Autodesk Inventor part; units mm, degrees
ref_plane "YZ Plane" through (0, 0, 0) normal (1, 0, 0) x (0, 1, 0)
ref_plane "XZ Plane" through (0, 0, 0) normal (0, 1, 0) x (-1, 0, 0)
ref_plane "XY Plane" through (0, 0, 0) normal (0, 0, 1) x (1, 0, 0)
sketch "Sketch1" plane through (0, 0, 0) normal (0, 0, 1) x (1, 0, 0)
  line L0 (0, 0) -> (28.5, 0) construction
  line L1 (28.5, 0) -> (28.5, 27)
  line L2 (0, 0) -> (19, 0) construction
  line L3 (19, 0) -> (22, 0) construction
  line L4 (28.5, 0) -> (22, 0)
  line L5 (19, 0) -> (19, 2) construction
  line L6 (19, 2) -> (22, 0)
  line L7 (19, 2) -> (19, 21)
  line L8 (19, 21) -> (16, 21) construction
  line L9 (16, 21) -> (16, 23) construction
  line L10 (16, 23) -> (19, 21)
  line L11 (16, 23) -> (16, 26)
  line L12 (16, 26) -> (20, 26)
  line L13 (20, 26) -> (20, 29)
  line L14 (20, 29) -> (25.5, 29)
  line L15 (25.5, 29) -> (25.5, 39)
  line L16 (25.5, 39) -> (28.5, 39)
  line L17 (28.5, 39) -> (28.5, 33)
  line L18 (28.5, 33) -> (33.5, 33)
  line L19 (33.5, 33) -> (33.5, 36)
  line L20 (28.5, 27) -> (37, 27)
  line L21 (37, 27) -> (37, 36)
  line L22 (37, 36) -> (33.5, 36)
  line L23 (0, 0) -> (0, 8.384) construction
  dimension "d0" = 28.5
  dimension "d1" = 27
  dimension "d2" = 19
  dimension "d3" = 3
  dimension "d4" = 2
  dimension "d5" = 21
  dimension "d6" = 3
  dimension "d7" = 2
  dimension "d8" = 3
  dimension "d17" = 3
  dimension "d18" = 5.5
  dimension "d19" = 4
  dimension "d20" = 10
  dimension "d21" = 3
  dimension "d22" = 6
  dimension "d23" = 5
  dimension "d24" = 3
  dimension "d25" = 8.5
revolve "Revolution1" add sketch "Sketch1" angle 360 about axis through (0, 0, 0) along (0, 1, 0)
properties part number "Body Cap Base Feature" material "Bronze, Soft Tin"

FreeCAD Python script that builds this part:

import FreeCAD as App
import Part
import Sketcher
from FreeCAD import Vector
Q = App.Units.Quantity

doc = App.newDocument("Part")
params = doc.addObject("Spreadsheet::Sheet", "Params")
for row, (alias, value) in enumerate([
    ("sketch1_width", "5 mm"),
    ("sketch1_width2", "3 mm"),
    ("sketch1_width3", "4 mm"),
    ("sketch1_height", "27 mm"),
    ("sketch1_height2", "6 mm"),
    ("revolution_angle", "360 deg"),
], start=1):
    params.set(f"A{row}", alias)
    params.set(f"B{row}", "=" + value)
    params.setAlias(f"B{row}", alias)

body = doc.addObject("PartDesign::Body", "Body")

# Sketch on XY plane
sketch1 = doc.addObject("Sketcher::SketchObject", "Sketch")
body.addObject(sketch1)
sketch1.AttachmentSupport = (doc.XY_Plane, [""])
sketch1.MapMode = "FlatFace"
sketch1.addGeometry([
    Part.LineSegment(Vector(22, 0, 0), Vector(28.5, 0, 0)),  # 0
    Part.LineSegment(Vector(28.5, 0, 0), Vector(28.5, 27, 0)),  # 1
    Part.LineSegment(Vector(28.5, 27, 0), Vector(37, 27, 0)),  # 2
    Part.LineSegment(Vector(37, 27, 0), Vector(37, 36, 0)),  # 3
    Part.LineSegment(Vector(37, 36, 0), Vector(33.5, 36, 0)),  # 4
    Part.LineSegment(Vector(33.5, 36, 0), Vector(33.5, 33, 0)),  # 5
    Part.LineSegment(Vector(33.5, 33, 0), Vector(28.5, 33, 0)),  # 6
    Part.LineSegment(Vector(28.5, 33, 0), Vector(28.5, 39, 0)),  # 7
    Part.LineSegment(Vector(28.5, 39, 0), Vector(25.5, 39, 0)),  # 8
    Part.LineSegment(Vector(25.5, 39, 0), Vector(25.5, 29, 0)),  # 9
    Part.LineSegment(Vector(25.5, 29, 0), Vector(20, 29, 0)),  # 10
    Part.LineSegment(Vector(20, 29, 0), Vector(20, 26, 0)),  # 11
    Part.LineSegment(Vector(20, 26, 0), Vector(16, 26, 0)),  # 12
    Part.LineSegment(Vector(16, 26, 0), Vector(16, 23, 0)),  # 13
    Part.LineSegment(Vector(16, 23, 0), Vector(19, 21, 0)),  # 14
    Part.LineSegment(Vector(19, 21, 0), Vector(19, 2, 0)),  # 15
    Part.LineSegment(Vector(19, 2, 0), Vector(22, 0, 0)),  # 16
], False)
sketch1.addConstraint([
    Sketcher.Constraint("Coincident", 0, 2, 1, 1),
    Sketcher.Constraint("Coincident", 1, 2, 2, 1),
    Sketcher.Constraint("Coincident", 2, 2, 3, 1),
    Sketcher.Constraint("Coincident", 3, 2, 4, 1),
    Sketcher.Constraint("Coincident", 4, 2, 5, 1),
    Sketcher.Constraint("Coincident", 5, 2, 6, 1),
    Sketcher.Constraint("Coincident", 6, 2, 7, 1),
    Sketcher.Constraint("Coincident", 7, 2, 8, 1),
    Sketcher.Constraint("Coincident", 8, 2, 9, 1),
    Sketcher.Constraint("Coincident", 9, 2, 10, 1),
    Sketcher.Constraint("Coincident", 10, 2, 11, 1),
    Sketcher.Constraint("Coincident", 11, 2, 12, 1),
    Sketcher.Constraint("Coincident", 12, 2, 13, 1),
    Sketcher.Constraint("Coincident", 13, 2, 14, 1),
    Sketcher.Constraint("Coincident", 14, 2, 15, 1),
    Sketcher.Constraint("Coincident", 15, 2, 16, 1),
    Sketcher.Constraint("Coincident", 16, 2, 0, 1),
    Sketcher.Constraint("Horizontal", 0),
    Sketcher.Constraint("Vertical", 1),
    Sketcher.Constraint("Horizontal", 2),
    Sketcher.Constraint("Vertical", 3),
    Sketcher.Constraint("Horizontal", 4),
    Sketcher.Constraint("Vertical", 5),
    Sketcher.Constraint("Horizontal", 6),
    Sketcher.Constraint("Vertical", 7),
    Sketcher.Constraint("Horizontal", 8),
    Sketcher.Constraint("Vertical", 9),
    Sketcher.Constraint("Horizontal", 10),
    Sketcher.Constraint("Vertical", 11),
    Sketcher.Constraint("Horizontal", 12),
    Sketcher.Constraint("Vertical", 13),
    Sketcher.Constraint("Vertical", 15),
    Sketcher.Constraint("PointOnObject", 0, 2, -1),
    Sketcher.Constraint("Parallel", 14, 16),
    Sketcher.Constraint("Vertical", 1, 2, 6, 2),
    Sketcher.Constraint("Equal", 8, 5),
    Sketcher.Constraint("Equal", 5, 11),
    Sketcher.Constraint("Equal", 11, 13),
    Sketcher.Constraint("Equal", 14, 16),
    Sketcher.Constraint("DistanceX", 6, 2, 6, 1, Q("5 mm")),
    Sketcher.Constraint("DistanceX", 8, 2, 8, 1, Q("3 mm")),
    Sketcher.Constraint("DistanceX", 12, 2, 12, 1, Q("4 mm")),
    Sketcher.Constraint("DistanceY", 1, 1, 1, 2, Q("27 mm")),
    Sketcher.Constraint("DistanceY", 7, 1, 7, 2, Q("6 mm")),
    Sketcher.Constraint("DistanceY", 9, 2, 9, 1, Q("10 mm")),
    Sketcher.Constraint("DistanceY", 15, 2, 15, 1, Q("19 mm")),
    Sketcher.Constraint("DistanceX", 2, 1, 2, 2, Q("8.5 mm")),
    Sketcher.Constraint("DistanceX", 10, 2, 10, 1, Q("5.5 mm")),
    Sketcher.Constraint("DistanceX", -1, 1, 14, 2, Q("19 mm")),
    Sketcher.Constraint("DistanceY", -1, 1, 14, 2, Q("21 mm")),
    Sketcher.Constraint("DistanceX", 13, 2, 14, 2, Q("3 mm")),
])
sketch1.setExpression("Constraints[39]", "Params.sketch1_width")
sketch1.setExpression("Constraints[40]", "Params.sketch1_width2")
sketch1.setExpression("Constraints[41]", "Params.sketch1_width3")
sketch1.setExpression("Constraints[42]", "Params.sketch1_height")
sketch1.setExpression("Constraints[43]", "Params.sketch1_height2")
revolution = doc.addObject("PartDesign::Revolution", "Revolution")
body.addObject(revolution)
revolution.Profile = sketch1
revolution.ReferenceAxis = (sketch1, ["V_Axis"])
revolution.setExpression("Angle", "Params.revolution_angle")

doc.recompute()
